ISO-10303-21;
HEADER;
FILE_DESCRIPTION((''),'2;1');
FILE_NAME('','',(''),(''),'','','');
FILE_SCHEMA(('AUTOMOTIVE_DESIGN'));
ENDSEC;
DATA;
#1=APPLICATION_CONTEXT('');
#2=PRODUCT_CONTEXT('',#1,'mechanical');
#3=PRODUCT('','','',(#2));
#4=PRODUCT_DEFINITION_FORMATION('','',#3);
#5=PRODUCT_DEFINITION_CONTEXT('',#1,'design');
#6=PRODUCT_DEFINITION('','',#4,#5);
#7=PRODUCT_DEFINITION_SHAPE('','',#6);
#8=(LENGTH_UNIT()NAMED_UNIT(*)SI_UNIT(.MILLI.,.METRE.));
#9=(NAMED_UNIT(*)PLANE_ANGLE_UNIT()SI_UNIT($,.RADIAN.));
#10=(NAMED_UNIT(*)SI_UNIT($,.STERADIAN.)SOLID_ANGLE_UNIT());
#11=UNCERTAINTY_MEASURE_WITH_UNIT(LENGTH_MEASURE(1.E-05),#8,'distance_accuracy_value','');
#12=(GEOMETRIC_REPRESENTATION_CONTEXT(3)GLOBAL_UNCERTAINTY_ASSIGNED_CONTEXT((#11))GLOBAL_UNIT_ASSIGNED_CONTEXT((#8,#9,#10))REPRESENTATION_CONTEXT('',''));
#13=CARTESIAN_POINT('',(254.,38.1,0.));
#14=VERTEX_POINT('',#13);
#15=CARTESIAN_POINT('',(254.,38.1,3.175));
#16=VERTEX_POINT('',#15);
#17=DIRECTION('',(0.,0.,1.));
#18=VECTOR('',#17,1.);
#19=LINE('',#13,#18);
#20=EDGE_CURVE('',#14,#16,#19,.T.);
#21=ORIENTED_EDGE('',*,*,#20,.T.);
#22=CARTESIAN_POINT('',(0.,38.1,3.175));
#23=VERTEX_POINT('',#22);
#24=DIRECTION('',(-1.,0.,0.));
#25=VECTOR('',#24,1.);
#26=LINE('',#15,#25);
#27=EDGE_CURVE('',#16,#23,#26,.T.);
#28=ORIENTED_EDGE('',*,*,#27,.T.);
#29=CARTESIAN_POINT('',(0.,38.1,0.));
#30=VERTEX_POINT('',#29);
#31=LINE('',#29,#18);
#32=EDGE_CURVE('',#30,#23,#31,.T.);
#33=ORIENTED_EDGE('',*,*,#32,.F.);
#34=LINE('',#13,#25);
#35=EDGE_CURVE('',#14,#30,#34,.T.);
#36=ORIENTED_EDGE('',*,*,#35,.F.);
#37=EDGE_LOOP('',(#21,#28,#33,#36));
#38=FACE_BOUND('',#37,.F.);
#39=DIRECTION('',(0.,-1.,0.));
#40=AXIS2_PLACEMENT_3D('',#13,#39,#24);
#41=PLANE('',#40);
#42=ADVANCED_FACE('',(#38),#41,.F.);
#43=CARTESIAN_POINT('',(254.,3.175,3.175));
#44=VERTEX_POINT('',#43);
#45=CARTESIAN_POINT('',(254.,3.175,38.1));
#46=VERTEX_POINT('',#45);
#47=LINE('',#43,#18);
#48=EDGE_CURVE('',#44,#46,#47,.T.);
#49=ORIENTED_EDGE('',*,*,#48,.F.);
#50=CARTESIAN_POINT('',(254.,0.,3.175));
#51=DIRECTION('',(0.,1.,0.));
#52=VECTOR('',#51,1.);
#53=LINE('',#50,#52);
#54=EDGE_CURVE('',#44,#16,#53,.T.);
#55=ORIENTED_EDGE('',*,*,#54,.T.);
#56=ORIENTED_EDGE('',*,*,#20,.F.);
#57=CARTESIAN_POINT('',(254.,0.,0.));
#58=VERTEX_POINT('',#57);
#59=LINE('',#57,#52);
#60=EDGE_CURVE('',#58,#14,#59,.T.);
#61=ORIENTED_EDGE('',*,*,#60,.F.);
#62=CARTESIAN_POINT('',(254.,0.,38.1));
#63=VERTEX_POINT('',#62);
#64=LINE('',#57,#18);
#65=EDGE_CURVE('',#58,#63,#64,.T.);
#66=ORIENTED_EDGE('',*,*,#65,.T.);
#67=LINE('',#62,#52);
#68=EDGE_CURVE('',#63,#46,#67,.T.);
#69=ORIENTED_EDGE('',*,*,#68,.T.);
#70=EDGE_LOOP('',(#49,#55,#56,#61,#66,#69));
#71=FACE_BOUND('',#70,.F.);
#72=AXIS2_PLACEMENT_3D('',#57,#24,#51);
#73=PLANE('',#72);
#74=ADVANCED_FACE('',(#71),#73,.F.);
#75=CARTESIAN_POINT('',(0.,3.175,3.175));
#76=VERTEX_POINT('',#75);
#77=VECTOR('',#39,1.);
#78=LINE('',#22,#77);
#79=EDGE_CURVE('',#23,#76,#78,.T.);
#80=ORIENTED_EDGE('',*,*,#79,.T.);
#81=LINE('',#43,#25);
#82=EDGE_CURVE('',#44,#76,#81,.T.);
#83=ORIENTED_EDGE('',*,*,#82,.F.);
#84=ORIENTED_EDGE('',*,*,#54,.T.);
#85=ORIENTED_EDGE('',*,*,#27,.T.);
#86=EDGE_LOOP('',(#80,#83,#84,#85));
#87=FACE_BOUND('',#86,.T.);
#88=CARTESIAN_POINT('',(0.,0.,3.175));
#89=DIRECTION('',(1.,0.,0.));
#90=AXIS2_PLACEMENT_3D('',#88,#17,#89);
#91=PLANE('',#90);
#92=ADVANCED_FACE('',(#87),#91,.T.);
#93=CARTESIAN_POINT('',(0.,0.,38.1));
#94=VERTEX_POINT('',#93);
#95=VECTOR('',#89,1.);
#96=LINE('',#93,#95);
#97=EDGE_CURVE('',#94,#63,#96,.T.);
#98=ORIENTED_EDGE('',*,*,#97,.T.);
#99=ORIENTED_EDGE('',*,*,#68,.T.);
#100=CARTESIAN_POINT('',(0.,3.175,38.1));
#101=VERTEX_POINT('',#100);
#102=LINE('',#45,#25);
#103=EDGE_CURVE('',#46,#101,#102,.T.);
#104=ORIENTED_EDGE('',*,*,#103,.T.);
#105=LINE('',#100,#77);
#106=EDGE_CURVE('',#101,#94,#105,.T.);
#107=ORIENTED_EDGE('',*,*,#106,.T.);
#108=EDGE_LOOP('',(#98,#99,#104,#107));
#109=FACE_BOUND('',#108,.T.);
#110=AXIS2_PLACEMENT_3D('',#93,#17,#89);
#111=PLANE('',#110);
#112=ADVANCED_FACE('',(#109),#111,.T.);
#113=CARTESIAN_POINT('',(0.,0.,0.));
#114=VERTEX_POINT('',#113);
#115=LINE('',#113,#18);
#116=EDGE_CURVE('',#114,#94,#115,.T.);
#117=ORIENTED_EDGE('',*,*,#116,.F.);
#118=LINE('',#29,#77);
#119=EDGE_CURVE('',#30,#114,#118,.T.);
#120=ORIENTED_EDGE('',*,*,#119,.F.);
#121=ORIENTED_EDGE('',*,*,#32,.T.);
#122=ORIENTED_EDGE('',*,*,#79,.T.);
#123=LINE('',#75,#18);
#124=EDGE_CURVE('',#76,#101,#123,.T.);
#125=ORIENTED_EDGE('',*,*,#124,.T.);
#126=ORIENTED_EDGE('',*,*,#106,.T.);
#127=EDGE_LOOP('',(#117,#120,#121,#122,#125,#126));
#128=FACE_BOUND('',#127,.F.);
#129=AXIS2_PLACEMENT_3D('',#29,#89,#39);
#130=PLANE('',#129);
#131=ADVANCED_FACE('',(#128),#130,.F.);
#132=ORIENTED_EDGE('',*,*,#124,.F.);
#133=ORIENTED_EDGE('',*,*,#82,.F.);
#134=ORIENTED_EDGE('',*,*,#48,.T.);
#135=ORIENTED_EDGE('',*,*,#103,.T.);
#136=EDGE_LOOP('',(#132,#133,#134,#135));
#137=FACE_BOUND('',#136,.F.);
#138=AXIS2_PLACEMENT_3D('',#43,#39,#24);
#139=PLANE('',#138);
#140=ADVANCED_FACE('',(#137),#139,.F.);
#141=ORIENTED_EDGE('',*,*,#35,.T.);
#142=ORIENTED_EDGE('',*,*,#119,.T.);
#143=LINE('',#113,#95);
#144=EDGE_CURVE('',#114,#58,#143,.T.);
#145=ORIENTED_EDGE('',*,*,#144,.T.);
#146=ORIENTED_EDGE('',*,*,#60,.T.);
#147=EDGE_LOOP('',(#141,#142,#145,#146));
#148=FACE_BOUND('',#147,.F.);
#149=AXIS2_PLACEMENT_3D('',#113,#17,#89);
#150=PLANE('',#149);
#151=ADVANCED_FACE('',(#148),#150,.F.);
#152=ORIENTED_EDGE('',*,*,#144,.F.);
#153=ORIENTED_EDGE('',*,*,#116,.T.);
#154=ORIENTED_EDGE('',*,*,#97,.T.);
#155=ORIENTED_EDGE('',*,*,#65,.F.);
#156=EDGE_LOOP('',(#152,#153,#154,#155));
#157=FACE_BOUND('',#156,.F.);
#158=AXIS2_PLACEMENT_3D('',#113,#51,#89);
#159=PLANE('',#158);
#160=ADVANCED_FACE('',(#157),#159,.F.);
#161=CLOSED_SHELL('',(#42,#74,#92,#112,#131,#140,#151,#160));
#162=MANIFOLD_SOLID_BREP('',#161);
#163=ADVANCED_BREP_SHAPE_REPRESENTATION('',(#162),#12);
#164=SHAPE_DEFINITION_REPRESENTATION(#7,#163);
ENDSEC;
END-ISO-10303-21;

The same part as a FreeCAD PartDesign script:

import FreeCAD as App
import Part
import Sketcher
from FreeCAD import Vector
Q = App.Units.Quantity

doc = App.newDocument("Part")
params = doc.addObject("Spreadsheet::Sheet", "Params")
for row, (alias, value) in enumerate([
    ("sketch1_width", "10 in"),
    ("sketch1_height", "1.5 in"),
    ("pad1_length", "0.125 in"),
    ("sketch2_width", "10 in"),
    ("sketch2_height", "0.125 in"),
    ("pad2_length", "1.375 in"),
], start=1):
    params.set(f"A{row}", alias)
    params.set(f"B{row}", "=" + value)
    params.setAlias(f"B{row}", alias)

body = doc.addObject("PartDesign::Body", "Body")

# Sketch on XY plane
sketch1 = doc.addObject("Sketcher::SketchObject", "Sketch")
body.addObject(sketch1)
sketch1.AttachmentSupport = (doc.XY_Plane, [""])
sketch1.MapMode = "FlatFace"
sketch1.addGeometry([
    Part.LineSegment(Vector(0, 38, 0), Vector(0, 0, 0)),
    Part.LineSegment(Vector(0, 0, 0), Vector(254, 0, 0)),
    Part.LineSegment(Vector(254, 0, 0), Vector(254, 38, 0)),
    Part.LineSegment(Vector(254, 38, 0), Vector(0, 38, 0)),
], False)
sketch1.addConstraint([
    Sketcher.Constraint("Coincident", 0, 2, 1, 1),
    Sketcher.Constraint("Coincident", 1, 2, 2, 1),
    Sketcher.Constraint("Coincident", 2, 2, 3, 1),
    Sketcher.Constraint("Coincident", 3, 2, 0, 1),
    Sketcher.Constraint("Vertical", 0),
    Sketcher.Constraint("Horizontal", 1),
    Sketcher.Constraint("Vertical", 2),
    Sketcher.Constraint("Horizontal", 3),
    Sketcher.Constraint("Coincident", 0, 2, -1, 1),
    Sketcher.Constraint("DistanceX", 1, 1, 1, 2, Q("10 in")),
    Sketcher.Constraint("DistanceY", 0, 2, 0, 1, Q("1.5 in")),
])
sketch1.setExpression("Constraints[9]", "Params.sketch1_width")
sketch1.setExpression("Constraints[10]", "Params.sketch1_height")
pad1 = doc.addObject("PartDesign::Pad", "Pad")
body.addObject(pad1)
pad1.Profile = sketch1
pad1.setExpression("Length", "Params.pad1_length")

# Sketch on XY plane
sketch2 = doc.addObject("Sketcher::SketchObject", "Sketch001")
body.addObject(sketch2)
sketch2.AttachmentSupport = (doc.XY_Plane, [""])
sketch2.MapMode = "FlatFace"
sketch2.AttachmentOffset = App.Placement(Vector(0, 0, 0.125 * 25.4), App.Rotation())
sketch2.addGeometry([
    Part.LineSegment(Vector(0, 3.2, 0), Vector(0, 0, 0)),
    Part.LineSegment(Vector(0, 0, 0), Vector(254, 0, 0)),
    Part.LineSegment(Vector(254, 0, 0), Vector(254, 3.2, 0)),
    Part.LineSegment(Vector(254, 3.2, 0), Vector(0, 3.2, 0)),
], False)
sketch2.addConstraint([
    Sketcher.Constraint("Coincident", 0, 2, 1, 1),
    Sketcher.Constraint("Coincident", 1, 2, 2, 1),
    Sketcher.Constraint("Coincident", 2, 2, 3, 1),
    Sketcher.Constraint("Coincident", 3, 2, 0, 1),
    Sketcher.Constraint("Vertical", 0),
    Sketcher.Constraint("Horizontal", 1),
    Sketcher.Constraint("Vertical", 2),
    Sketcher.Constraint("Horizontal", 3),
    Sketcher.Constraint("Coincident", 0, 2, -1, 1),
    Sketcher.Constraint("DistanceX", 1, 1, 1, 2, Q("10 in")),
    Sketcher.Constraint("DistanceY", 0, 2, 0, 1, Q("0.125 in")),
])
sketch2.setExpression("Constraints[9]", "Params.sketch2_width")
sketch2.setExpression("Constraints[10]", "Params.sketch2_height")
pad2 = doc.addObject("PartDesign::Pad", "Pad001")
body.addObject(pad2)
pad2.Profile = sketch2
pad2.setExpression("Length", "Params.pad2_length")

doc.recompute()
